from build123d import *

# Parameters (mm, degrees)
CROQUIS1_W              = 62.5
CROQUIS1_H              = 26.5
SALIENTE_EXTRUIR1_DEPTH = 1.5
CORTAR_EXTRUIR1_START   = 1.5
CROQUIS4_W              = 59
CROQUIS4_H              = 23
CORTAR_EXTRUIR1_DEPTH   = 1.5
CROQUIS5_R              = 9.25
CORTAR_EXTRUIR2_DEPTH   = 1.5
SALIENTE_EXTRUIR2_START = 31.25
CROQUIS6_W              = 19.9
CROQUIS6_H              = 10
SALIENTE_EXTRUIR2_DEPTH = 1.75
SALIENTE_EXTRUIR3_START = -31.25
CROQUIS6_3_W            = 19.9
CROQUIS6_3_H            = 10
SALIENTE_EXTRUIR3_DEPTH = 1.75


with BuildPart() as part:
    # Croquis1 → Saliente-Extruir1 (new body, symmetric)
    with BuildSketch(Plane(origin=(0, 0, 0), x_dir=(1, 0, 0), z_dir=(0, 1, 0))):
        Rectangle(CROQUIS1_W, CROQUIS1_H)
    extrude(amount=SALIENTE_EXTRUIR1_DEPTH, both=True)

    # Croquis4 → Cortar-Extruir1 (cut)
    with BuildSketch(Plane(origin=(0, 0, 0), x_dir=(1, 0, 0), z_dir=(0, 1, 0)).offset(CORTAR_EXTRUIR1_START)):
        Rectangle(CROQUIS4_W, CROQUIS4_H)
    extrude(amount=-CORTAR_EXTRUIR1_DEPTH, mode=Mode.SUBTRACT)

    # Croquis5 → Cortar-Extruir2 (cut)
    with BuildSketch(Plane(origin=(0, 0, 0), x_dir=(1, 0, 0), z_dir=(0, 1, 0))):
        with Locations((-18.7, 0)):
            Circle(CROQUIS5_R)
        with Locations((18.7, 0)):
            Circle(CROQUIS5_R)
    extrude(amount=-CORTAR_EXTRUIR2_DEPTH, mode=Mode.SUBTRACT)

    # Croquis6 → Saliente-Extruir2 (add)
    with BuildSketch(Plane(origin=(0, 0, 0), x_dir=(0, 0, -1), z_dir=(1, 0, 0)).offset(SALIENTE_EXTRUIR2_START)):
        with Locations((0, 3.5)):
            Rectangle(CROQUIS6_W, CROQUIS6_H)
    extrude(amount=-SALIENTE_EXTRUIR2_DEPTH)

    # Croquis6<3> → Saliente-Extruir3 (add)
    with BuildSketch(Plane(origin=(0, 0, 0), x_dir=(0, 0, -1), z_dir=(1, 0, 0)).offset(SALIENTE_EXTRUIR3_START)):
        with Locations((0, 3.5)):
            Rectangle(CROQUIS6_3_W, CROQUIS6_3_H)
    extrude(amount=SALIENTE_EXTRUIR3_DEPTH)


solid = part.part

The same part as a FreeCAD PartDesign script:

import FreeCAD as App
import Part
import Sketcher
from FreeCAD import Vector


def add_polygon(sketch, points):
    """Adds a closed chain of lines whose ends are joined by coincident constraints."""
    first, n = sketch.GeometryCount, len(points)
    for a, b in zip(points, points[1:] + points[:1]):
        sketch.addGeometry(Part.LineSegment(App.Vector(*a, 0), App.Vector(*b, 0)), False)
    for i in range(n):
        sketch.addConstraint(Sketcher.Constraint("Coincident", first + i, 2, first + (i + 1) % n, 1))

doc = App.newDocument("Part")
body = doc.addObject("PartDesign::Body", "Body")

# Sketch on XZ plane
sketch1 = doc.addObject("Sketcher::SketchObject", "Sketch")
body.addObject(sketch1)
sketch1.AttachmentSupport = (doc.XZ_Plane, [""])
sketch1.MapMode = "FlatFace"
add_polygon(sketch1, [(-31.25, -13.25), (-31.25, 13.25), (31.25, 13.25), (31.25, -13.25)])  # lines 0-3
sketch1.addConstraint(Sketcher.Constraint("Vertical", 0))
sketch1.addConstraint(Sketcher.Constraint("Horizontal", 1))
sketch1.addConstraint(Sketcher.Constraint("Vertical", 2))
sketch1.addConstraint(Sketcher.Constraint("Horizontal", 3))
sketch1.addConstraint(Sketcher.Constraint("Symmetric", 0, 2, 2, 2, -1, 1))
sketch1.addConstraint(Sketcher.Constraint("DistanceX", 1, 1, 1, 2, 62.5))
sketch1.addConstraint(Sketcher.Constraint("DistanceY", 0, 1, 0, 2, 26.5))
pad1 = doc.addObject("PartDesign::Pad", "Pad")
body.addObject(pad1)
pad1.Profile = sketch1
pad1.Length = 3
pad1.Midplane = True

# Sketch on XZ plane
sketch2 = doc.addObject("Sketcher::SketchObject", "Sketch001")
body.addObject(sketch2)
sketch2.AttachmentSupport = (doc.XZ_Plane, [""])
sketch2.MapMode = "FlatFace"
sketch2.AttachmentOffset = App.Placement(Vector(0, 0, -1.5), App.Rotation())
add_polygon(sketch2, [(-29.5, -11.5), (-29.5, 11.5), (29.5, 11.5), (29.5, -11.5)])  # lines 0-3
sketch2.addConstraint(Sketcher.Constraint("Vertical", 0))
sketch2.addConstraint(Sketcher.Constraint("Horizontal", 1))
sketch2.addConstraint(Sketcher.Constraint("Vertical", 2))
sketch2.addConstraint(Sketcher.Constraint("Horizontal", 3))
sketch2.addConstraint(Sketcher.Constraint("Symmetric", 0, 2, 2, 2, -1, 1))
sketch2.addConstraint(Sketcher.Constraint("DistanceX", 1, 1, 1, 2, 59.0))
sketch2.addConstraint(Sketcher.Constraint("DistanceY", 0, 1, 0, 2, 23.0))
pocket1 = doc.addObject("PartDesign::Pocket", "Pocket")
body.addObject(pocket1)
pocket1.Profile = sketch2
pocket1.Length = 1.5
pocket1.Reversed = True

# Sketch on XZ plane
sketch3 = doc.addObject("Sketcher::SketchObject", "Sketch002")
body.addObject(sketch3)
sketch3.AttachmentSupport = (doc.XZ_Plane, [""])
sketch3.MapMode = "FlatFace"
sketch3.addGeometry(Part.Circle(Vector(-18.7, 0, 0), Vector(0, 0, 1), 9.25), False)
sketch3.addGeometry(Part.Circle(Vector(18.7, 0, 0), Vector(0, 0, 1), 9.25), False)
sketch3.addConstraint(Sketcher.Constraint("Equal", 0, 1))
sketch3.addConstraint(Sketcher.Constraint("Symmetric", 0, 3, 1, 3, -1, 1))
sketch3.addConstraint(Sketcher.Constraint("PointOnObject", 0, 3, -1))
sketch3.addConstraint(Sketcher.Constraint("Diameter", 0, 18.5))
sketch3.addConstraint(Sketcher.Constraint("DistanceX", 0, 3, -1, 1, 18.7))
pocket2 = doc.addObject("PartDesign::Pocket", "Pocket001")
body.addObject(pocket2)
pocket2.Profile = sketch3
pocket2.Length = 1.5
pocket2.Reversed = True

# Sketch on YZ plane
sketch4 = doc.addObject("Sketcher::SketchObject", "Sketch003")
body.addObject(sketch4)
sketch4.AttachmentSupport = (doc.YZ_Plane, [""])
sketch4.MapMode = "FlatFace"
sketch4.AttachmentOffset = App.Placement(Vector(0, 0, 31.25), App.Rotation())
add_polygon(sketch4, [(8.5, 9.95), (-1.5, 9.95), (-1.5, -9.95), (8.5, -9.95)])  # lines 0-3
sketch4.addConstraint(Sketcher.Constraint("Horizontal", 0))
sketch4.addConstraint(Sketcher.Constraint("Vertical", 1))
sketch4.addConstraint(Sketcher.Constraint("Horizontal", 2))
sketch4.addConstraint(Sketcher.Constraint("Vertical", 3))
sketch4.addConstraint(Sketcher.Constraint("DistanceX", 0, 2, 0, 1, 10.0))
sketch4.addConstraint(Sketcher.Constraint("DistanceY", 1, 2, 1, 1, 19.9))
sketch4.addConstraint(Sketcher.Constraint("DistanceX", 0, 2, -1, 1, 1.5))
sketch4.addConstraint(Sketcher.Constraint("DistanceY", -1, 1, 0, 2, 9.95))
pad2 = doc.addObject("PartDesign::Pad", "Pad001")
body.addObject(pad2)
pad2.Profile = sketch4
pad2.Length = 1.75
pad2.Reversed = True

# Sketch on YZ plane
sketch5 = doc.addObject("Sketcher::SketchObject", "Sketch004")
body.addObject(sketch5)
sketch5.AttachmentSupport = (doc.YZ_Plane, [""])
sketch5.MapMode = "FlatFace"
sketch5.AttachmentOffset = App.Placement(Vector(0, 0, -31.25), App.Rotation())
add_polygon(sketch5, [(8.5, 9.95), (-1.5, 9.95), (-1.5, -9.95), (8.5, -9.95)])  # lines 0-3
sketch5.addConstraint(Sketcher.Constraint("Horizontal", 0))
sketch5.addConstraint(Sketcher.Constraint("Vertical", 1))
sketch5.addConstraint(Sketcher.Constraint("Horizontal", 2))
sketch5.addConstraint(Sketcher.Constraint("Vertical", 3))
sketch5.addConstraint(Sketcher.Constraint("DistanceX", 0, 2, 0, 1, 10.0))
sketch5.addConstraint(Sketcher.Constraint("DistanceY", 1, 2, 1, 1, 19.9))
sketch5.addConstraint(Sketcher.Constraint("DistanceX", 0, 2, -1, 1, 1.5))
sketch5.addConstraint(Sketcher.Constraint("DistanceY", -1, 1, 0, 2, 9.95))
pad3 = doc.addObject("PartDesign::Pad", "Pad002")
body.addObject(pad3)
pad3.Profile = sketch5
pad3.Length = 1.75

doc.recompute()
